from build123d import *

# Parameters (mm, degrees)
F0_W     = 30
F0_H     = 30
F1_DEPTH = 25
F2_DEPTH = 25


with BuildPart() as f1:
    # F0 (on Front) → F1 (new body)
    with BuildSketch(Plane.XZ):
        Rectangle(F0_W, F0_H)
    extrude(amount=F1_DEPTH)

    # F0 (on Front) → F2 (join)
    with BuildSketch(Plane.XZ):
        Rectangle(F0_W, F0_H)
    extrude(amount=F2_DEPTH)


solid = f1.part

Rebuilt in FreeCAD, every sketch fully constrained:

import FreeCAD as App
import Part
import Sketcher

doc = App.newDocument("Part")
body = doc.addObject("PartDesign::Body", "Body")

# Sketch on XZ plane
sketch1 = body.newObject("Sketcher::SketchObject", "Sketch")
sketch1.AttachmentSupport = (doc.getObject("XZ_Plane"), [""])
sketch1.MapMode = "FlatFace"
sketch1.addGeometry([
    Part.LineSegment(App.Vector(-15, 15, 0), App.Vector(-15, -15, 0)),
    Part.LineSegment(App.Vector(-15, -15, 0), App.Vector(15, -15, 0)),
    Part.LineSegment(App.Vector(15, -15, 0), App.Vector(15, 15, 0)),
    Part.LineSegment(App.Vector(15, 15, 0), App.Vector(-15, 15, 0)),
], False)
sketch1.addConstraint([
    Sketcher.Constraint("Coincident", 0, 2, 1, 1),
    Sketcher.Constraint("Coincident", 1, 2, 2, 1),
    Sketcher.Constraint("Coincident", 2, 2, 3, 1),
    Sketcher.Constraint("Coincident", 3, 2, 0, 1),
    Sketcher.Constraint("Vertical", 0),
    Sketcher.Constraint("Horizontal", 1),
    Sketcher.Constraint("Vertical", 2),
    Sketcher.Constraint("Horizontal", 3),
    Sketcher.Constraint("Symmetric", 0, 2, 2, 2, -1, 1),
    Sketcher.Constraint("Equal", 3, 0),
    Sketcher.Constraint("DistanceX", 1, 1, 1, 2, 30.0),
])
pad1 = body.newObject("PartDesign::Pad", "Pad")
pad1.Profile = sketch1
pad1.Length = 25

# Sketch on XZ plane
sketch2 = body.newObject("Sketcher::SketchObject", "Sketch001")
sketch2.AttachmentSupport = (doc.getObject("XZ_Plane"), [""])
sketch2.MapMode = "FlatFace"
sketch2.addGeometry([
    Part.LineSegment(App.Vector(-15, 15, 0), App.Vector(-15, -15, 0)),
    Part.LineSegment(App.Vector(-15, -15, 0), App.Vector(15, -15, 0)),
    Part.LineSegment(App.Vector(15, -15, 0), App.Vector(15, 15, 0)),
    Part.LineSegment(App.Vector(15, 15, 0), App.Vector(-15, 15, 0)),
], False)
sketch2.addConstraint([
    Sketcher.Constraint("Coincident", 0, 2, 1, 1),
    Sketcher.Constraint("Coincident", 1, 2, 2, 1),
    Sketcher.Constraint("Coincident", 2, 2, 3, 1),
    Sketcher.Constraint("Coincident", 3, 2, 0, 1),
    Sketcher.Constraint("Vertical", 0),
    Sketcher.Constraint("Horizontal", 1),
    Sketcher.Constraint("Vertical", 2),
    Sketcher.Constraint("Horizontal", 3),
    Sketcher.Constraint("Symmetric", 0, 2, 2, 2, -1, 1),
    Sketcher.Constraint("Equal", 3, 0),
    Sketcher.Constraint("DistanceX", 1, 1, 1, 2, 30.0),
])
pad2 = body.newObject("PartDesign::Pad", "Pad001")
pad2.Profile = sketch2
pad2.Length = 25

doc.recompute()
